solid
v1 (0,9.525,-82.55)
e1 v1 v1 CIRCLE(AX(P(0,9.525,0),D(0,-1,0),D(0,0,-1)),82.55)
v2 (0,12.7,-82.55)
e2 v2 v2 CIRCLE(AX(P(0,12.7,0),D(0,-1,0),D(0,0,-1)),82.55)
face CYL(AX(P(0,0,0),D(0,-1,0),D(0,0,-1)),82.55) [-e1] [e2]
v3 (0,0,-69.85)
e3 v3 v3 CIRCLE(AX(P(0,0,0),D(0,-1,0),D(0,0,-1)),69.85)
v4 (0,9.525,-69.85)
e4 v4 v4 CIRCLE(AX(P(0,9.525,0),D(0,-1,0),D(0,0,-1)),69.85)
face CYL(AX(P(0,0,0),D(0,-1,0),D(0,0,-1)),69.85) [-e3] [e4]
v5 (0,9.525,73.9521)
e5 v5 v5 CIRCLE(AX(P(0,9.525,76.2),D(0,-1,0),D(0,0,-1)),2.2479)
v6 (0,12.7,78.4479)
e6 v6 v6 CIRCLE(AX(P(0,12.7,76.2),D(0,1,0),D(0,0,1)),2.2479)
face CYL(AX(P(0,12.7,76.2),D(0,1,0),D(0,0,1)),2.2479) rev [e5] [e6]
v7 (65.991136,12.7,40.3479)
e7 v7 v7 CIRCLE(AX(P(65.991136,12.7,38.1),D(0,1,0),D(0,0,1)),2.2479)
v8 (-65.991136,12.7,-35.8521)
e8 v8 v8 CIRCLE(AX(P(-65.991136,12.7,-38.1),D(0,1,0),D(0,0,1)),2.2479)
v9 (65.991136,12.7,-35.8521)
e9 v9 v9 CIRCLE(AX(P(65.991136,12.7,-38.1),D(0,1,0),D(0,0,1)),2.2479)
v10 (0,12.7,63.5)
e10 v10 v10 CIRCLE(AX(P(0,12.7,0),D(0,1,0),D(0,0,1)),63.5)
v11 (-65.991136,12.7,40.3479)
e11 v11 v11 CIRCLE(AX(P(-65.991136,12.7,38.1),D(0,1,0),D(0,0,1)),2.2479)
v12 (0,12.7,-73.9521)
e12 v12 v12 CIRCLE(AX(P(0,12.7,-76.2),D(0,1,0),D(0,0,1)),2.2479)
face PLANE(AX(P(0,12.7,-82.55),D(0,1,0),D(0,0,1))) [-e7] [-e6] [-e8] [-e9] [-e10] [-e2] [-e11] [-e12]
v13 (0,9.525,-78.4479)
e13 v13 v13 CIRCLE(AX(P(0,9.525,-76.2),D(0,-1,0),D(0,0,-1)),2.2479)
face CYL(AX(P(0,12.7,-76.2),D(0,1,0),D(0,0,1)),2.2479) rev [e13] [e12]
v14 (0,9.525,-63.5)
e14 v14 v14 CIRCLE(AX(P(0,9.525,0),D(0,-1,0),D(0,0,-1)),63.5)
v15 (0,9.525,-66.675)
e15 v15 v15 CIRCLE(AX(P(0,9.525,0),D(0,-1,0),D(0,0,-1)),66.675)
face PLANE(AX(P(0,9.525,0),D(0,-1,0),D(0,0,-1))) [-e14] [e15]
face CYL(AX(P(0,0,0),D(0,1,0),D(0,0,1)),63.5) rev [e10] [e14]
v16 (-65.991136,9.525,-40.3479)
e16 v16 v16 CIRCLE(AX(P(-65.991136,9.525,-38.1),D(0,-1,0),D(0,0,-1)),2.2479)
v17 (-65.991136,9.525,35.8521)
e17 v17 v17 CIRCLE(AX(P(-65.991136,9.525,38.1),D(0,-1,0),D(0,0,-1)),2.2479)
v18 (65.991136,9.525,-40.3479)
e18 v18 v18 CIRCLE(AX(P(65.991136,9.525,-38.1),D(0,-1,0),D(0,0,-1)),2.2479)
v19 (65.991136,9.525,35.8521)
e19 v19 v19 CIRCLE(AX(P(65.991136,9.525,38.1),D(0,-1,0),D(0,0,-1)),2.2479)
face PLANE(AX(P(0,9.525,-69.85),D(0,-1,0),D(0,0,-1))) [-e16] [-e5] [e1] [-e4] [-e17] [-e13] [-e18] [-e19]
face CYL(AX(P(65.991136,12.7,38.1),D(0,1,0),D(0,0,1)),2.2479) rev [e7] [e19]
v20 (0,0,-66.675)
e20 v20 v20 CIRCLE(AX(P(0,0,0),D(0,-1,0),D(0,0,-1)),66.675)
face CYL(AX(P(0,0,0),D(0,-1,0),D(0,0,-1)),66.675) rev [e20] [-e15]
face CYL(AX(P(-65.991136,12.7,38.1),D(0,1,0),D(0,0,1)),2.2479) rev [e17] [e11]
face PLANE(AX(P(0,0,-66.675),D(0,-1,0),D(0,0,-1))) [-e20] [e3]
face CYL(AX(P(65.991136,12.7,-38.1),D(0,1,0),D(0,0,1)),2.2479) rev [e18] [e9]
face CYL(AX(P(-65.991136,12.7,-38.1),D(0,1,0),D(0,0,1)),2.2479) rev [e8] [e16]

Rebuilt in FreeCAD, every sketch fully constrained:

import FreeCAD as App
import Part
import Sketcher

V = App.Vector
Q = App.Units.Quantity


def add_polygon(sketch, points):
    """Adds a closed chain of lines whose ends are joined by coincident constraints."""
    first, n = sketch.GeometryCount, len(points)
    for a, b in zip(points, points[1:] + points[:1]):
        sketch.addGeometry(Part.LineSegment(App.Vector(*a, 0), App.Vector(*b, 0)), False)
    for i in range(n):
        sketch.addConstraint(Sketcher.Constraint("Coincident", first + i, 2, first + (i + 1) % n, 1))

doc = App.newDocument("Part")
body = doc.addObject("PartDesign::Body", "Body")

sketch1 = body.newObject("Sketcher::SketchObject", "Sketch")
sketch1.AttachmentSupport = (doc.getObject("YZ_Plane"), [""])
sketch1.MapMode = "FlatFace"
add_polygon(sketch1, [(0, -66.675), (0, -69.85), (9.525, -69.85), (9.525, -82.55), (12.7, -82.55), (12.7, 0), (9.525, 0), (9.525, -66.675)])
sketch1.addConstraint([
    Sketcher.Constraint("Vertical", 0),
    Sketcher.Constraint("Horizontal", 1),
    Sketcher.Constraint("Vertical", 2),
    Sketcher.Constraint("Horizontal", 3),
    Sketcher.Constraint("Vertical", 4),
    Sketcher.Constraint("Horizontal", 5),
    Sketcher.Constraint("Vertical", 6),
    Sketcher.Constraint("Horizontal", 7),
    Sketcher.Constraint("PointOnObject", 0, 2, -2),
    Sketcher.Constraint("PointOnObject", 4, 2, -1),
    Sketcher.Constraint("Vertical", 2, 2, 5, 2),
    Sketcher.Constraint("Equal", 5, 0),
    Sketcher.Constraint("DistanceY", 2, 2, 2, 1, Q("0.5 in")),
    Sketcher.Constraint("DistanceY", 4, 1, 4, 2, Q("3.25 in")),
    Sketcher.Constraint("DistanceX", -1, 1, 3, 2, Q("0.5 in")),
    Sketcher.Constraint("DistanceX", 1, 1, 1, 2, Q("0.375 in")),
])
revolution = body.newObject("PartDesign::Revolution", "Revolution")
revolution.Profile = sketch1
revolution.ReferenceAxis = (sketch1, ["H_Axis"])
revolution.Angle = 360

sketch2 = body.newObject("Sketcher::SketchObject", "Sketch001")
sketch2.AttachmentSupport = (doc.getObject("XZ_Plane"), [""])
sketch2.MapMode = "FlatFace"
sketch2.AttachmentOffset = App.Placement(V(0, 0, -0.5 * 25.4), App.Rotation())
sketch2.addGeometry(Part.Circle(V(0, -76.2, 0), V(0, 0, 1), 2.2479), False)
sketch2.addConstraint([
    Sketcher.Constraint("PointOnObject", 0, 3, -2),
    Sketcher.Constraint("Diameter", 0, Q("0.177 in")),
    Sketcher.Constraint("DistanceY", 0, 3, -1, 1, Q("3 in")),
])
doc.recompute()
hole = body.newObject("PartDesign::Hole", "Hole")
hole.Profile = sketch2
hole.ThreadType = "None"
hole.Diameter = Q("0.177 in")
hole.DepthType = "Dimension"
hole.Depth = 3.176
hole.DrillPoint = "Flat"
hole.Reversed = True
doc.recompute()

polarpattern = body.newObject("PartDesign::PolarPattern", "PolarPattern")
polarpattern.Originals = [hole]
polarpattern.Axis = (doc.getObject("Y_Axis"), [""])
polarpattern.Angle = 360
polarpattern.Occurrences = 6
body.Tip = polarpattern

sketch3 = body.newObject("Sketcher::SketchObject", "Sketch002")
sketch3.AttachmentSupport = (doc.getObject("XZ_Plane"), [""])
sketch3.MapMode = "FlatFace"
sketch3.AttachmentOffset = App.Placement(V(0, 0, -0.5 * 25.4), App.Rotation())
sketch3.addGeometry(Part.Circle(V(0, 0, 0), V(0, 0, 1), 63.5), False)
sketch3.addConstraint([
    Sketcher.Constraint("Coincident", 0, 3, -1, 1),
    Sketcher.Constraint("Diameter", 0, Q("5 in")),
])
pocket1 = body.newObject("PartDesign::Pocket", "Pocket")
pocket1.Profile = sketch3
pocket1.Type = "ThroughAll"
pocket1.Reversed = True

doc.recompute()
